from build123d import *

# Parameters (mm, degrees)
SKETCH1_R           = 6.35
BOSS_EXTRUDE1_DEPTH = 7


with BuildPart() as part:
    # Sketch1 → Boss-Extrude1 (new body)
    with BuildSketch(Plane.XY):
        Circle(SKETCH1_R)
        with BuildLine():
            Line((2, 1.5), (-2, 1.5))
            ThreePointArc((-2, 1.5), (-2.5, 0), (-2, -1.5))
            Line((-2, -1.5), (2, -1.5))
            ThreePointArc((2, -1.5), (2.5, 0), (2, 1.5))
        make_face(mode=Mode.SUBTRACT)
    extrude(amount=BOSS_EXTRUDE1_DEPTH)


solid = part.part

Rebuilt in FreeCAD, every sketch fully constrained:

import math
import FreeCAD as App
import Part
import Sketcher
from FreeCAD import Vector
Q = App.Units.Quantity

doc = App.newDocument("Part")
body = doc.addObject("PartDesign::Body", "Body")

# Sketch on XY plane
sketch1 = body.newObject("Sketcher::SketchObject", "Sketch")
sketch1.AttachmentSupport = (doc.getObject("XY_Plane"), [""])
sketch1.MapMode = "FlatFace"
sketch1.addGeometry(Part.Circle(Vector(0, 0, 0), Vector(0, 0, 1), 6.35), False)
sketch1.addGeometry(Part.LineSegment(Vector(-2, 1.5, 0), Vector(2, 1.5, 0)), False)
sketch1.addGeometry(Part.ArcOfCircle(Part.Circle(Vector(0, 0, 0), Vector(0, 0, 1), 2.5), math.radians(-36.869898), math.radians(36.869898)), False)
sketch1.addGeometry(Part.LineSegment(Vector(2, -1.5, 0), Vector(-2, -1.5, 0)), False)
sketch1.addGeometry(Part.ArcOfCircle(Part.Circle(Vector(0, 0, 0), Vector(0, 0, 1), 2.5), math.radians(143.130102), math.radians(216.869898)), False)
sketch1.addConstraint(Sketcher.Constraint("Coincident", 1, 2, 2, 2))
sketch1.addConstraint(Sketcher.Constraint("Coincident", 2, 1, 3, 1))
sketch1.addConstraint(Sketcher.Constraint("Coincident", 3, 2, 4, 2))
sketch1.addConstraint(Sketcher.Constraint("Coincident", 4, 1, 1, 1))
sketch1.addConstraint(Sketcher.Constraint("Horizontal", 1))
sketch1.addConstraint(Sketcher.Constraint("Horizontal", 3))
sketch1.addConstraint(Sketcher.Constraint("Coincident", 0, 3, -1, 1))
sketch1.addConstraint(Sketcher.Constraint("Coincident", 2, 3, -1, 1))
sketch1.addConstraint(Sketcher.Constraint("Coincident", 4, 3, -1, 1))
sketch1.addConstraint(Sketcher.Constraint("Equal", 2, 4))
sketch1.addConstraint(Sketcher.Constraint("Vertical", 1, 2, 2, 1))
sketch1.addConstraint(Sketcher.Constraint("Diameter", 0, Q("12.7 mm")))
sketch1.addConstraint(Sketcher.Constraint("Radius", 2, Q("2.5 mm")))
sketch1.addConstraint(Sketcher.Constraint("DistanceX", 1, 1, 1, 2, Q("4 mm")))
pad1 = body.newObject("PartDesign::Pad", "Pad")
pad1.Profile = sketch1
pad1.Length = 7

doc.recompute()
